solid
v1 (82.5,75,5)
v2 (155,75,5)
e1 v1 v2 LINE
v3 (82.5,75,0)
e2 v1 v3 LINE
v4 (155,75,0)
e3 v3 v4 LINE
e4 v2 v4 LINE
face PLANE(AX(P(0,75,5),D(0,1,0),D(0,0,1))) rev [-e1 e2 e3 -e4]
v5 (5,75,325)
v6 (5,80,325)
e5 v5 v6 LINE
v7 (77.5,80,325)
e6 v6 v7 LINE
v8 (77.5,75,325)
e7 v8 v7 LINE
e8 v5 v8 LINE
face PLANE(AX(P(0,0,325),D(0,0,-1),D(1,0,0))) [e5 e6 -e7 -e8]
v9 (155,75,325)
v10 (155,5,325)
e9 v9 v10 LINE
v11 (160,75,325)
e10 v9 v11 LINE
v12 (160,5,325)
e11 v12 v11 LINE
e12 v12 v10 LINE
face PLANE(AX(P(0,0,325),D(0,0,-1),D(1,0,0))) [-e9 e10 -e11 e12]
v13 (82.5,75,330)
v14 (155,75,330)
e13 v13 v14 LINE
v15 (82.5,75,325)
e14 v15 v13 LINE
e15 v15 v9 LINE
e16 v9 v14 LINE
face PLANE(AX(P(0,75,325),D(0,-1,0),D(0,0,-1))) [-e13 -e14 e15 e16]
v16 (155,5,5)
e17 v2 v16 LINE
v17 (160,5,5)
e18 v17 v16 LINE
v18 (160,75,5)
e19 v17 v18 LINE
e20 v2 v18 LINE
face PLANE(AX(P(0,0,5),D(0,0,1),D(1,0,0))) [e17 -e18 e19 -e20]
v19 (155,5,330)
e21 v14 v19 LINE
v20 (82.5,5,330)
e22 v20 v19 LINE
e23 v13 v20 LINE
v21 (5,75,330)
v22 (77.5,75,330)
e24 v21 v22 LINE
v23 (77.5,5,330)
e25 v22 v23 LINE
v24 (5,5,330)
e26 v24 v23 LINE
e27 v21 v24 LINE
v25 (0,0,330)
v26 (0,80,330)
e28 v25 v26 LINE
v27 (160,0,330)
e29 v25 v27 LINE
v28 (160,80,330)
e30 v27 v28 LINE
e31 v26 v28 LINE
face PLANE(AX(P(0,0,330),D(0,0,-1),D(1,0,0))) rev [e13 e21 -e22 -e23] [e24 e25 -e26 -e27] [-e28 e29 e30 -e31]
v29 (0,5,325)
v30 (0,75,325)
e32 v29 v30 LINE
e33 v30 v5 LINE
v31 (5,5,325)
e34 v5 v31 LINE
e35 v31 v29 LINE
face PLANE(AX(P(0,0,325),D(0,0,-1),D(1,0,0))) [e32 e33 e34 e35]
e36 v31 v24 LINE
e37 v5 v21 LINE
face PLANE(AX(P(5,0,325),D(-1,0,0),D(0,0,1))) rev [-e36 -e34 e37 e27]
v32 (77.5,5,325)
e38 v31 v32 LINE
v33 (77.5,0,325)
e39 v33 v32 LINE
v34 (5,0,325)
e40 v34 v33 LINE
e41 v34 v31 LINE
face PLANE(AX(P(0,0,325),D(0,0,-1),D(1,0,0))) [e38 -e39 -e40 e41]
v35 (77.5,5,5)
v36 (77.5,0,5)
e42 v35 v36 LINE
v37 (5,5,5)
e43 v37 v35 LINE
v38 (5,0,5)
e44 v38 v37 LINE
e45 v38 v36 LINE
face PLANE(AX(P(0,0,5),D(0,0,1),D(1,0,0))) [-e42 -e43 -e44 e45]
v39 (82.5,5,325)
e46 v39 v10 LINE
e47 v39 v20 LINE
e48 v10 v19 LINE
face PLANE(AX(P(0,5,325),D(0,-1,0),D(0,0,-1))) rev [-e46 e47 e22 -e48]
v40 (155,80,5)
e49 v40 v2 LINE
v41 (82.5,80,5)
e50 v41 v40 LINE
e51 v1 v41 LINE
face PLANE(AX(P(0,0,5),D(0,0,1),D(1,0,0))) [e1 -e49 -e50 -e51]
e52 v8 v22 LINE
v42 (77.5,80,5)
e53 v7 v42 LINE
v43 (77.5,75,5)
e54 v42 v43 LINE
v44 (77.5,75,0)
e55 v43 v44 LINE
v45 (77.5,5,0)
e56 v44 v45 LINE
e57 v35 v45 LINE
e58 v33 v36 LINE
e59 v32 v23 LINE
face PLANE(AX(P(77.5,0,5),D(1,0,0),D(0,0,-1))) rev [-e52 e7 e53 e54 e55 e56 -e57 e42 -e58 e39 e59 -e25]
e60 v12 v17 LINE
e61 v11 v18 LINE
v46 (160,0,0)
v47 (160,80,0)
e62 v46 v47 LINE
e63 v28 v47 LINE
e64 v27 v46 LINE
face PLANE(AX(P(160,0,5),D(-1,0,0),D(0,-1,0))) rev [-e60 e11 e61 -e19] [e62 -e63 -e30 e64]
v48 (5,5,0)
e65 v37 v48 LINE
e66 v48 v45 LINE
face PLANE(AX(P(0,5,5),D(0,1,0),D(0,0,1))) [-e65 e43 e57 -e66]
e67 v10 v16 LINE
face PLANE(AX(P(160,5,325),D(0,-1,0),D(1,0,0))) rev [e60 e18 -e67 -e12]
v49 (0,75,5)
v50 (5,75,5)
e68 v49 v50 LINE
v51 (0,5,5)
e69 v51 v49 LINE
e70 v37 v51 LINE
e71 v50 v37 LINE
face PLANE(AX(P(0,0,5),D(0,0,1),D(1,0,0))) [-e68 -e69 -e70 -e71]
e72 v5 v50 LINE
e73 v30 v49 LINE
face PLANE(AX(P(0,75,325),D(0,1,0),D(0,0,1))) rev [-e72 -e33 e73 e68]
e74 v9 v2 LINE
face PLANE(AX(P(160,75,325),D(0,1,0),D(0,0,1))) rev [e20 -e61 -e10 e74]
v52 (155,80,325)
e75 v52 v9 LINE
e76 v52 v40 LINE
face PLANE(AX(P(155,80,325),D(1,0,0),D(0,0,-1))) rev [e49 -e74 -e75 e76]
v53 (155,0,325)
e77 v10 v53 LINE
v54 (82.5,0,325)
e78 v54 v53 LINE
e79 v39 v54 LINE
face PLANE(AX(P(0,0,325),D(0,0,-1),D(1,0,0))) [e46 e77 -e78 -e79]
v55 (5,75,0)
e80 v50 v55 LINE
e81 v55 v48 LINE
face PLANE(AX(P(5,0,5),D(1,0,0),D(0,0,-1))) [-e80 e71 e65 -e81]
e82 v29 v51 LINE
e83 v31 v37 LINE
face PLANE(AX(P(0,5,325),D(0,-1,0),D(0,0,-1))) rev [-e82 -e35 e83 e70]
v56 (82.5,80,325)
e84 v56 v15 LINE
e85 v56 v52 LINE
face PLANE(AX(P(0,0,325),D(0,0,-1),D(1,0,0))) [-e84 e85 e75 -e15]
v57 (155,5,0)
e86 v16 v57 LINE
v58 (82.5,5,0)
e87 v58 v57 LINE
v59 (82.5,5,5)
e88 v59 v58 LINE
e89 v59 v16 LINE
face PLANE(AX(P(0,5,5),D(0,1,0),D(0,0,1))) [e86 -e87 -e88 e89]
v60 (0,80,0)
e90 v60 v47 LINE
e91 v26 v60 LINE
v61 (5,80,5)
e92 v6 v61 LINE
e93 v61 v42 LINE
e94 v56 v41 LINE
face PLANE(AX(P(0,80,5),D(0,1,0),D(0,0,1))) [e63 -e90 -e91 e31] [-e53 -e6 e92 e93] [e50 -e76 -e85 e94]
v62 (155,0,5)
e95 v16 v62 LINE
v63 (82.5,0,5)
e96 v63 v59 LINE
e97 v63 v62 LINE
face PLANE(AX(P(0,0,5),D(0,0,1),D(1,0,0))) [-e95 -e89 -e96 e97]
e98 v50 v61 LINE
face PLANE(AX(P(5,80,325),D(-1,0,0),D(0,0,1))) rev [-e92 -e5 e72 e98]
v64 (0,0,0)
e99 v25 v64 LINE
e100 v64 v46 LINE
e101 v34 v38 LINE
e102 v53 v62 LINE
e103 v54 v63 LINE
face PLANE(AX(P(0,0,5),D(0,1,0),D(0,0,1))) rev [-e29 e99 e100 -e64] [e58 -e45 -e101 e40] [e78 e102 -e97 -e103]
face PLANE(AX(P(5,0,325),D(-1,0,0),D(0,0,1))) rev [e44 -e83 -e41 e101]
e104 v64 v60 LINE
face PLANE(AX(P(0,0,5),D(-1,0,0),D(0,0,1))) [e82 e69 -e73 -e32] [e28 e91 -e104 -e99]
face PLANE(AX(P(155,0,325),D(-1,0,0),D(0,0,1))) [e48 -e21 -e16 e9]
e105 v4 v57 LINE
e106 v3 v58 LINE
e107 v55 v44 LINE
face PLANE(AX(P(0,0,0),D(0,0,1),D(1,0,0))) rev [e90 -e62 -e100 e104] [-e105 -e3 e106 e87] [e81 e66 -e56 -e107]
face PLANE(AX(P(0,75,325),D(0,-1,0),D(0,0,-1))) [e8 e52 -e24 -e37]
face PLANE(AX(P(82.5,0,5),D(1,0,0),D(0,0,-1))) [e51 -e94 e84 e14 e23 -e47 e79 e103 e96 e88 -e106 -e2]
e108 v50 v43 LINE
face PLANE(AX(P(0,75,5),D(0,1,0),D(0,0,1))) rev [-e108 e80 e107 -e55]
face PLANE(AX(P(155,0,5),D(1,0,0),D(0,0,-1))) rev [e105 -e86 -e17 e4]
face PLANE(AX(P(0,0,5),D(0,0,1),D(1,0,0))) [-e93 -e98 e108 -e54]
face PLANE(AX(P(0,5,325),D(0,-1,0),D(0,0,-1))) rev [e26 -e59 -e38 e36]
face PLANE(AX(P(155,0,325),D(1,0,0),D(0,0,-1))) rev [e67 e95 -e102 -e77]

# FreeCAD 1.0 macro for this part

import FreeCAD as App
import Part
import Sketcher
from FreeCAD import Vector

doc = App.newDocument("Part")
body = doc.addObject("PartDesign::Body", "Body")

# Sketch on XY plane
sketch1 = body.newObject("Sketcher::SketchObject", "Sketch")
sketch1.AttachmentSupport = (doc.getObject("XY_Plane"), [""])
sketch1.MapMode = "FlatFace"
sketch1.addGeometry([
    Part.LineSegment(Vector(0, 80, 0), Vector(0, 0, 0)),  # 0
    Part.LineSegment(Vector(0, 0, 0), Vector(160, 0, 0)),  # 1
    Part.LineSegment(Vector(160, 0, 0), Vector(160, 80, 0)),  # 2
    Part.LineSegment(Vector(160, 80, 0), Vector(0, 80, 0)),  # 3
    Part.LineSegment(Vector(77.5, 5, 0), Vector(5, 5, 0)),  # 4
    Part.LineSegment(Vector(5, 5, 0), Vector(5, 75, 0)),  # 5
    Part.LineSegment(Vector(5, 75, 0), Vector(77.5, 75, 0)),  # 6
    Part.LineSegment(Vector(77.5, 75, 0), Vector(77.5, 5, 0)),  # 7
    Part.LineSegment(Vector(155, 5, 0), Vector(82.5, 5, 0)),  # 8
    Part.LineSegment(Vector(82.5, 5, 0), Vector(82.5, 75, 0)),  # 9
    Part.LineSegment(Vector(82.5, 75, 0), Vector(155, 75, 0)),  # 10
    Part.LineSegment(Vector(155, 75, 0), Vector(155, 5, 0)),  # 11
], False)
sketch1.addConstraint([
    Sketcher.Constraint("Coincident", 0, 2, 1, 1),
    Sketcher.Constraint("Coincident", 1, 2, 2, 1),
    Sketcher.Constraint("Coincident", 2, 2, 3, 1),
    Sketcher.Constraint("Coincident", 3, 2, 0, 1),
    Sketcher.Constraint("Coincident", 4, 2, 5, 1),
    Sketcher.Constraint("Coincident", 5, 2, 6, 1),
    Sketcher.Constraint("Coincident", 6, 2, 7, 1),
    Sketcher.Constraint("Coincident", 7, 2, 4, 1),
    Sketcher.Constraint("Coincident", 8, 2, 9, 1),
    Sketcher.Constraint("Coincident", 9, 2, 10, 1),
    Sketcher.Constraint("Coincident", 10, 2, 11, 1),
    Sketcher.Constraint("Coincident", 11, 2, 8, 1),
    Sketcher.Constraint("Vertical", 0),
    Sketcher.Constraint("Horizontal", 1),
    Sketcher.Constraint("Vertical", 2),
    Sketcher.Constraint("Horizontal", 3),
    Sketcher.Constraint("Horizontal", 4),
    Sketcher.Constraint("Vertical", 5),
    Sketcher.Constraint("Horizontal", 6),
    Sketcher.Constraint("Vertical", 7),
    Sketcher.Constraint("Horizontal", 8),
    Sketcher.Constraint("Vertical", 9),
    Sketcher.Constraint("Horizontal", 10),
    Sketcher.Constraint("Vertical", 11),
    Sketcher.Constraint("Coincident", 0, 2, -1, 1),
    Sketcher.Constraint("Horizontal", 7, 2, 8, 2),
    Sketcher.Constraint("Horizontal", 6, 2, 9, 2),
    Sketcher.Constraint("Equal", 6, 8),
    Sketcher.Constraint("DistanceX", 1, 1, 1, 2, 160.0),
    Sketcher.Constraint("DistanceY", 0, 2, 0, 1, 80.0),
    Sketcher.Constraint("DistanceY", 5, 1, 5, 2, 70.0),
    Sketcher.Constraint("DistanceX", 4, 2, 4, 1, 72.5),
    Sketcher.Constraint("DistanceX", -1, 1, 4, 2, 5.0),
    Sketcher.Constraint("DistanceY", -1, 1, 4, 2, 5.0),
    Sketcher.Constraint("DistanceX", -1, 1, 10, 2, 155.0),
])
pad1 = body.newObject("PartDesign::Pad", "Pad")
pad1.Profile = sketch1
pad1.Length = 5

# Sketch on XY plane
sketch2 = body.newObject("Sketcher::SketchObject", "Sketch001")
sketch2.AttachmentSupport = (doc.getObject("XY_Plane"), [""])
sketch2.MapMode = "FlatFace"
sketch2.AttachmentOffset = App.Placement(Vector(0, 0, 5), App.Rotation())
sketch2.addGeometry([
    Part.LineSegment(Vector(0, 5, 0), Vector(0, 0, 0)),  # 0
    Part.LineSegment(Vector(0, 0, 0), Vector(5, 0, 0)),  # 1
    Part.LineSegment(Vector(5, 0, 0), Vector(5, 5, 0)),  # 2
    Part.LineSegment(Vector(5, 5, 0), Vector(0, 5, 0)),  # 3
    Part.LineSegment(Vector(0, 80, 0), Vector(0, 75, 0)),  # 4
    Part.LineSegment(Vector(0, 75, 0), Vector(5, 75, 0)),  # 5
    Part.LineSegment(Vector(5, 75, 0), Vector(5, 80, 0)),  # 6
    Part.LineSegment(Vector(5, 80, 0), Vector(0, 80, 0)),  # 7
    Part.LineSegment(Vector(155, 80, 0), Vector(155, 75, 0)),  # 8
    Part.LineSegment(Vector(155, 75, 0), Vector(160, 75, 0)),  # 9
    Part.LineSegment(Vector(160, 75, 0), Vector(160, 80, 0)),  # 10
    Part.LineSegment(Vector(160, 80, 0), Vector(155, 80, 0)),  # 11
    Part.LineSegment(Vector(155, 5, 0), Vector(155, 0, 0)),  # 12
    Part.LineSegment(Vector(155, 0, 0), Vector(160, 0, 0)),  # 13
    Part.LineSegment(Vector(160, 0, 0), Vector(160, 5, 0)),  # 14
    Part.LineSegment(Vector(160, 5, 0), Vector(155, 5, 0)),  # 15
], False)
sketch2.addConstraint([
    Sketcher.Constraint("Coincident", 0, 2, 1, 1),
    Sketcher.Constraint("Coincident", 1, 2, 2, 1),
    Sketcher.Constraint("Coincident", 2, 2, 3, 1),
    Sketcher.Constraint("Coincident", 3, 2, 0, 1),
    Sketcher.Constraint("Coincident", 4, 2, 5, 1),
    Sketcher.Constraint("Coincident", 5, 2, 6, 1),
    Sketcher.Constraint("Coincident", 6, 2, 7, 1),
    Sketcher.Constraint("Coincident", 7, 2, 4, 1),
    Sketcher.Constraint("Coincident", 8, 2, 9, 1),
    Sketcher.Constraint("Coincident", 9, 2, 10, 1),
    Sketcher.Constraint("Coincident", 10, 2, 11, 1),
    Sketcher.Constraint("Coincident", 11, 2, 8, 1),
    Sketcher.Constraint("Coincident", 12, 2, 13, 1),
    Sketcher.Constraint("Coincident", 13, 2, 14, 1),
    Sketcher.Constraint("Coincident", 14, 2, 15, 1),
    Sketcher.Constraint("Coincident", 15, 2, 12, 1),
    Sketcher.Constraint("Vertical", 0),
    Sketcher.Constraint("Horizontal", 1),
    Sketcher.Constraint("Vertical", 2),
    Sketcher.Constraint("Horizontal", 3),
    Sketcher.Constraint("Vertical", 4),
    Sketcher.Constraint("Horizontal", 5),
    Sketcher.Constraint("Vertical", 6),
    Sketcher.Constraint("Horizontal", 7),
    Sketcher.Constraint("Vertical", 8),
    Sketcher.Constraint("Horizontal", 9),
    Sketcher.Constraint("Vertical", 10),
    Sketcher.Constraint("Horizontal", 11),
    Sketcher.Constraint("Vertical", 12),
    Sketcher.Constraint("Horizontal", 13),
    Sketcher.Constraint("Vertical", 14),
    Sketcher.Constraint("Horizontal", 15),
    Sketcher.Constraint("Coincident", 0, 2, -1, 1),
    Sketcher.Constraint("PointOnObject", 4, 2, -2),
    Sketcher.Constraint("PointOnObject", 12, 2, -1),
    Sketcher.Constraint("Horizontal", 5, 2, 8, 2),
    Sketcher.Constraint("Horizontal", 7, 2, 10, 2),
    Sketcher.Constraint("Horizontal", 3, 2, 14, 2),
    Sketcher.Constraint("Vertical", 2, 2, 5, 2),
    Sketcher.Constraint("Vertical", 11, 2, 12, 2),
    Sketcher.Constraint("Vertical", 10, 2, 13, 2),
    Sketcher.Constraint("Equal", 7, 9),
    Sketcher.Constraint("Equal", 15, 0),
    Sketcher.Constraint("Equal", 2, 4),
    Sketcher.Constraint("DistanceX", 1, 1, 1, 2, 5.0),
    Sketcher.Constraint("DistanceY", -1, 1, 4, 2, 75.0),
    Sketcher.Constraint("DistanceX", -1, 1, 8, 2, 155.0),
])
pad2 = body.newObject("PartDesign::Pad", "Pad001")
pad2.Profile = sketch2
pad2.Length = 320
doc.recompute()

datumplane = body.newObject("PartDesign::Plane", "DatumPlane")
datumplane.AttachmentSupport = (doc.getObject("XY_Plane"), [""])
datumplane.MapMode = "FlatFace"
datumplane.AttachmentOffset = App.Placement(Vector(0, 0, 165), App.Rotation())
mirrored = body.newObject("PartDesign::Mirrored", "Mirrored")
mirrored.Originals = [pad1]
mirrored.MirrorPlane = (datumplane, [""])
body.Tip = mirrored

# Sketch on XY plane
sketch3 = body.newObject("Sketcher::SketchObject", "Sketch002")
sketch3.AttachmentSupport = (doc.getObject("XY_Plane"), [""])
sketch3.MapMode = "FlatFace"
sketch3.AttachmentOffset = App.Placement(Vector(0, 0, 5), App.Rotation())
sketch3.addGeometry([
    Part.LineSegment(Vector(77.5, 80, 0), Vector(77.5, 0, 0)),
    Part.LineSegment(Vector(77.5, 0, 0), Vector(82.5, 0, 0)),
    Part.LineSegment(Vector(82.5, 0, 0), Vector(82.5, 80, 0)),
    Part.LineSegment(Vector(82.5, 80, 0), Vector(77.5, 80, 0)),
], False)
sketch3.addConstraint([
    Sketcher.Constraint("Coincident", 0, 2, 1, 1),
    Sketcher.Constraint("Coincident", 1, 2, 2, 1),
    Sketcher.Constraint("Coincident", 2, 2, 3, 1),
    Sketcher.Constraint("Coincident", 3, 2, 0, 1),
    Sketcher.Constraint("Vertical", 0),
    Sketcher.Constraint("Horizontal", 1),
    Sketcher.Constraint("Vertical", 2),
    Sketcher.Constraint("Horizontal", 3),
    Sketcher.Constraint("PointOnObject", 0, 2, -1),
    Sketcher.Constraint("DistanceX", 1, 1, 1, 2, 5.0),
    Sketcher.Constraint("DistanceY", 0, 2, 0, 1, 80.0),
    Sketcher.Constraint("DistanceX", -1, 1, 0, 2, 77.5),
])
pad3 = body.newObject("PartDesign::Pad", "Pad002")
pad3.Profile = sketch3
pad3.Type = "UpToFirst"

doc.recompute()
